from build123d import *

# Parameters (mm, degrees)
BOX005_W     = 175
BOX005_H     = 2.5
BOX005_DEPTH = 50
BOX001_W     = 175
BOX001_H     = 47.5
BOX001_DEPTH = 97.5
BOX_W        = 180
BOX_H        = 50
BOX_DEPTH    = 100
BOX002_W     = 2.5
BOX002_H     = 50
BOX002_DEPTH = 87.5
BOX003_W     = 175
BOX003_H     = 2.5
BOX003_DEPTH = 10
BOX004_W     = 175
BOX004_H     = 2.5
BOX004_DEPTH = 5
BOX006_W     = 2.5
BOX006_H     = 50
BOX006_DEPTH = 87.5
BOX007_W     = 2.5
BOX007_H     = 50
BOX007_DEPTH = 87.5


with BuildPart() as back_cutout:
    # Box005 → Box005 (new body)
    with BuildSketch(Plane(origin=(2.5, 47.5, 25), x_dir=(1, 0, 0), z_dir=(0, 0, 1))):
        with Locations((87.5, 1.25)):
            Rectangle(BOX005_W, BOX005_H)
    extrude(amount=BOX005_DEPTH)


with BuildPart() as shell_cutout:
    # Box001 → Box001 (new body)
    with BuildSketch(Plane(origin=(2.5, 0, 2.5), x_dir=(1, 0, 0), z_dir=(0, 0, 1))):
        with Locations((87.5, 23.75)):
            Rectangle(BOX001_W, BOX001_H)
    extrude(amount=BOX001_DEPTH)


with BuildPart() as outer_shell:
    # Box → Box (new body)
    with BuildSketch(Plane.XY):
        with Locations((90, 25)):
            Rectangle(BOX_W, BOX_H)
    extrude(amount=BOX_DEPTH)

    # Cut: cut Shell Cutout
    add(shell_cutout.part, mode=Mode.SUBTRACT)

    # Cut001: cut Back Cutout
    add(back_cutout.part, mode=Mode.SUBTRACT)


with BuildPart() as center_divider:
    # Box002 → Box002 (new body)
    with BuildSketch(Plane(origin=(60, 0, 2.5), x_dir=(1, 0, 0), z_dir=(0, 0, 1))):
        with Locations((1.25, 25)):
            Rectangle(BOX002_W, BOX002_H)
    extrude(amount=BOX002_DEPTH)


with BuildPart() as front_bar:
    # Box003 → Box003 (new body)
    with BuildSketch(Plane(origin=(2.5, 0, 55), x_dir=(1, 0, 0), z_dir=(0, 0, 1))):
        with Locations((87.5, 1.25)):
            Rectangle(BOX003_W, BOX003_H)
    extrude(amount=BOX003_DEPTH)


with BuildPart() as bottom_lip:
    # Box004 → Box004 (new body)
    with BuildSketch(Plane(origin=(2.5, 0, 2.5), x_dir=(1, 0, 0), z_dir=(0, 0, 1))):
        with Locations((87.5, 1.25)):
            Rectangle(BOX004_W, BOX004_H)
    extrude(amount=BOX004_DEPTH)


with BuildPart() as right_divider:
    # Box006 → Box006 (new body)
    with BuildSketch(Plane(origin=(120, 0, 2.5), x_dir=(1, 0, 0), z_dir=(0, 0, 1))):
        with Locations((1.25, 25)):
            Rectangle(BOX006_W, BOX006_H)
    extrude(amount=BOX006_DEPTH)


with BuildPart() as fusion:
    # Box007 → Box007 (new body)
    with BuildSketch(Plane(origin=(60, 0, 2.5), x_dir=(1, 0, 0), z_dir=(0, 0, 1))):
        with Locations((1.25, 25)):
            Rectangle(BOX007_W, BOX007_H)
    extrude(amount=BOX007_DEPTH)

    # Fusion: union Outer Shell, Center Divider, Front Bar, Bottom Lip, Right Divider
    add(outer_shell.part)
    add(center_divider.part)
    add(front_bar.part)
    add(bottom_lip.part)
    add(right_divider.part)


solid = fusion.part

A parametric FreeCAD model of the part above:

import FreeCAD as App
import Part
import Sketcher

V = App.Vector

doc = App.newDocument("Part")
params = doc.addObject("Spreadsheet::Sheet", "Params")
for row, (alias, value) in enumerate([
    ("sketch1_width", "175 mm"),
    ("sketch1_height", "2.5 mm"),
    ("pad1_length", "50 mm"),
    ("sketch2_width", "175 mm"),
    ("sketch2_height", "47.5 mm"),
    ("pad2_length", "97.5 mm"),
    ("sketch3_width", "180 mm"),
    ("sketch3_height", "50 mm"),
    ("pad3_length", "100 mm"),
    ("sketch4_height", "50 mm"),
    ("sketch4_width", "2.5 mm"),
    ("pad4_length", "87.5 mm"),
    ("sketch5_width", "175 mm"),
    ("sketch5_height", "2.5 mm"),
    ("pad5_length", "10 mm"),
    ("sketch6_width", "175 mm"),
    ("sketch6_height", "2.5 mm"),
    ("pad6_length", "5 mm"),
    ("sketch7_height", "50 mm"),
    ("sketch7_width", "2.5 mm"),
    ("pad7_length", "87.5 mm"),
    ("sketch8_height", "50 mm"),
    ("sketch8_width", "2.5 mm"),
    ("pad8_length", "87.5 mm"),
], start=1):
    params.set(f"A{row}", alias)
    params.set(f"B{row}", "=" + value)
    params.setAlias(f"B{row}", alias)

body = doc.addObject("PartDesign::Body", "Body")

sketch1 = body.newObject("Sketcher::SketchObject", "Sketch")
sketch1.AttachmentSupport = (doc.getObject("XY_Plane"), [""])
sketch1.MapMode = "FlatFace"
sketch1.AttachmentOffset = App.Placement(V(0, 0, 25), App.Rotation())
sketch1.addGeometry([
    Part.LineSegment(V(2.5, 50, 0), V(2.5, 47.5, 0)),
    Part.LineSegment(V(2.5, 47.5, 0), V(177.5, 47.5, 0)),
    Part.LineSegment(V(177.5, 47.5, 0), V(177.5, 50, 0)),
    Part.LineSegment(V(177.5, 50, 0), V(2.5, 50, 0)),
], False)
sketch1.addConstraint([
    Sketcher.Constraint("Coincident", 0, 2, 1, 1),
    Sketcher.Constraint("Coincident", 1, 2, 2, 1),
    Sketcher.Constraint("Coincident", 2, 2, 3, 1),
    Sketcher.Constraint("Coincident", 3, 2, 0, 1),
    Sketcher.Constraint("Vertical", 0),
    Sketcher.Constraint("Horizontal", 1),
    Sketcher.Constraint("Vertical", 2),
    Sketcher.Constraint("Horizontal", 3),
    Sketcher.Constraint("DistanceX", 1, 1, 1, 2, 175.0),
    Sketcher.Constraint("DistanceY", 0, 2, 0, 1, 2.5),
    Sketcher.Constraint("DistanceY", -1, 1, 2, 2, 50.0),
    Sketcher.Constraint("DistanceX", -1, 1, 0, 2, 2.5),
])
sketch1.setExpression("Constraints[8]", "Params.sketch1_width")
sketch1.setExpression("Constraints[9]", "Params.sketch1_height")
pad1 = body.newObject("PartDesign::Pad", "Pad")
pad1.Profile = sketch1
pad1.setExpression("Length", "Params.pad1_length")
body2 = doc.addObject("PartDesign::Body", "Body001")

sketch2 = body2.newObject("Sketcher::SketchObject", "Sketch001")
sketch2.AttachmentSupport = (doc.getObject("XY_Plane001"), [""])
sketch2.MapMode = "FlatFace"
sketch2.AttachmentOffset = App.Placement(V(0, 0, 2.5), App.Rotation())
sketch2.addGeometry([
    Part.LineSegment(V(2, 48, 0), V(2, 0, 0)),
    Part.LineSegment(V(2, 0, 0), V(178, 0, 0)),
    Part.LineSegment(V(178, 0, 0), V(178, 48, 0)),
    Part.LineSegment(V(178, 48, 0), V(2, 48, 0)),
], False)
sketch2.addConstraint([
    Sketcher.Constraint("Coincident", 0, 2, 1, 1),
    Sketcher.Constraint("Coincident", 1, 2, 2, 1),
    Sketcher.Constraint("Coincident", 2, 2, 3, 1),
    Sketcher.Constraint("Coincident", 3, 2, 0, 1),
    Sketcher.Constraint("Vertical", 0),
    Sketcher.Constraint("Horizontal", 1),
    Sketcher.Constraint("Vertical", 2),
    Sketcher.Constraint("Horizontal", 3),
    Sketcher.Constraint("PointOnObject", 0, 2, -1),
    Sketcher.Constraint("DistanceX", 1, 1, 1, 2, 175.0),
    Sketcher.Constraint("DistanceY", 0, 2, 0, 1, 47.5),
    Sketcher.Constraint("DistanceX", -1, 1, 0, 2, 2.5),
])
sketch2.setExpression("Constraints[9]", "Params.sketch2_width")
sketch2.setExpression("Constraints[10]", "Params.sketch2_height")
pad2 = body2.newObject("PartDesign::Pad", "Pad001")
pad2.Profile = sketch2
pad2.setExpression("Length", "Params.pad2_length")
body3 = doc.addObject("PartDesign::Body", "Body002")

sketch3 = body3.newObject("Sketcher::SketchObject", "Sketch002")
sketch3.AttachmentSupport = (doc.getObject("XY_Plane002"), [""])
sketch3.MapMode = "FlatFace"
sketch3.addGeometry([
    Part.LineSegment(V(0, 50, 0), V(0, 0, 0)),
    Part.LineSegment(V(0, 0, 0), V(180, 0, 0)),
    Part.LineSegment(V(180, 0, 0), V(180, 50, 0)),
    Part.LineSegment(V(180, 50, 0), V(0, 50, 0)),
], False)
sketch3.addConstraint([
    Sketcher.Constraint("Coincident", 0, 2, 1, 1),
    Sketcher.Constraint("Coincident", 1, 2, 2, 1),
    Sketcher.Constraint("Coincident", 2, 2, 3, 1),
    Sketcher.Constraint("Coincident", 3, 2, 0, 1),
    Sketcher.Constraint("Vertical", 0),
    Sketcher.Constraint("Horizontal", 1),
    Sketcher.Constraint("Vertical", 2),
    Sketcher.Constraint("Horizontal", 3),
    Sketcher.Constraint("Coincident", 0, 2, -1, 1),
    Sketcher.Constraint("DistanceX", 1, 1, 1, 2, 180.0),
    Sketcher.Constraint("DistanceY", 0, 2, 0, 1, 50.0),
])
sketch3.setExpression("Constraints[9]", "Params.sketch3_width")
sketch3.setExpression("Constraints[10]", "Params.sketch3_height")
pad3 = body3.newObject("PartDesign::Pad", "Pad002")
pad3.Profile = sketch3
pad3.setExpression("Length", "Params.pad3_length")
doc.recompute()

boolean = body3.newObject("PartDesign::Boolean", "Boolean")
boolean.Type = "Cut"
boolean.addObjects([body2])
doc.recompute()

boolean2 = body3.newObject("PartDesign::Boolean", "Boolean001")
boolean2.Type = "Cut"
boolean2.addObjects([body])
body4 = doc.addObject("PartDesign::Body", "Body003")

sketch4 = body4.newObject("Sketcher::SketchObject", "Sketch003")
sketch4.AttachmentSupport = (doc.getObject("XY_Plane003"), [""])
sketch4.MapMode = "FlatFace"
sketch4.AttachmentOffset = App.Placement(V(0, 0, 2.5), App.Rotation())
sketch4.addGeometry([
    Part.LineSegment(V(60, 50, 0), V(60, 0, 0)),
    Part.LineSegment(V(60, 0, 0), V(62.5, 0, 0)),
    Part.LineSegment(V(62.5, 0, 0), V(62.5, 50, 0)),
    Part.LineSegment(V(62.5, 50, 0), V(60, 50, 0)),
], False)
sketch4.addConstraint([
    Sketcher.Constraint("Coincident", 0, 2, 1, 1),
    Sketcher.Constraint("Coincident", 1, 2, 2, 1),
    Sketcher.Constraint("Coincident", 2, 2, 3, 1),
    Sketcher.Constraint("Coincident", 3, 2, 0, 1),
    Sketcher.Constraint("Vertical", 0),
    Sketcher.Constraint("Horizontal", 1),
    Sketcher.Constraint("Vertical", 2),
    Sketcher.Constraint("Horizontal", 3),
    Sketcher.Constraint("PointOnObject", 0, 2, -1),
    Sketcher.Constraint("DistanceY", 0, 2, 0, 1, 50.0),
    Sketcher.Constraint("DistanceX", 1, 1, 1, 2, 2.5),
    Sketcher.Constraint("DistanceX", -1, 1, 0, 2, 60.0),
])
sketch4.setExpression("Constraints[9]", "Params.sketch4_height")
sketch4.setExpression("Constraints[10]", "Params.sketch4_width")
pad4 = body4.newObject("PartDesign::Pad", "Pad003")
pad4.Profile = sketch4
pad4.setExpression("Length", "Params.pad4_length")
body5 = doc.addObject("PartDesign::Body", "Body004")

sketch5 = body5.newObject("Sketcher::SketchObject", "Sketch004")
sketch5.AttachmentSupport = (doc.getObject("XY_Plane004"), [""])
sketch5.MapMode = "FlatFace"
sketch5.AttachmentOffset = App.Placement(V(0, 0, 55), App.Rotation())
sketch5.addGeometry([
    Part.LineSegment(V(2.5, 2.5, 0), V(2.5, 0, 0)),
    Part.LineSegment(V(2.5, 0, 0), V(177.5, 0, 0)),
    Part.LineSegment(V(177.5, 0, 0), V(177.5, 2.5, 0)),
    Part.LineSegment(V(177.5, 2.5, 0), V(2.5, 2.5, 0)),
], False)
sketch5.addConstraint([
    Sketcher.Constraint("Coincident", 0, 2, 1, 1),
    Sketcher.Constraint("Coincident", 1, 2, 2, 1),
    Sketcher.Constraint("Coincident", 2, 2, 3, 1),
    Sketcher.Constraint("Coincident", 3, 2, 0, 1),
    Sketcher.Constraint("Vertical", 0),
    Sketcher.Constraint("Horizontal", 1),
    Sketcher.Constraint("Vertical", 2),
    Sketcher.Constraint("Horizontal", 3),
    Sketcher.Constraint("PointOnObject", 0, 2, -1),
    Sketcher.Constraint("DistanceX", 1, 1, 1, 2, 175.0),
    Sketcher.Constraint("DistanceY", 0, 2, 0, 1, 2.5),
    Sketcher.Constraint("DistanceX", -1, 1, 0, 2, 2.5),
])
sketch5.setExpression("Constraints[9]", "Params.sketch5_width")
sketch5.setExpression("Constraints[10]", "Params.sketch5_height")
pad5 = body5.newObject("PartDesign::Pad", "Pad004")
pad5.Profile = sketch5
pad5.setExpression("Length", "Params.pad5_length")
body6 = doc.addObject("PartDesign::Body", "Body005")

sketch6 = body6.newObject("Sketcher::SketchObject", "Sketch005")
sketch6.AttachmentSupport = (doc.getObject("XY_Plane005"), [""])
sketch6.MapMode = "FlatFace"
sketch6.AttachmentOffset = App.Placement(V(0, 0, 2.5), App.Rotation())
sketch6.addGeometry([
    Part.LineSegment(V(2.5, 2.5, 0), V(2.5, 0, 0)),
    Part.LineSegment(V(2.5, 0, 0), V(177.5, 0, 0)),
    Part.LineSegment(V(177.5, 0, 0), V(177.5, 2.5, 0)),
    Part.LineSegment(V(177.5, 2.5, 0), V(2.5, 2.5, 0)),
], False)
sketch6.addConstraint([
    Sketcher.Constraint("Coincident", 0, 2, 1, 1),
    Sketcher.Constraint("Coincident", 1, 2, 2, 1),
    Sketcher.Constraint("Coincident", 2, 2, 3, 1),
    Sketcher.Constraint("Coincident", 3, 2, 0, 1),
    Sketcher.Constraint("Vertical", 0),
    Sketcher.Constraint("Horizontal", 1),
    Sketcher.Constraint("Vertical", 2),
    Sketcher.Constraint("Horizontal", 3),
    Sketcher.Constraint("PointOnObject", 0, 2, -1),
    Sketcher.Constraint("DistanceX", 1, 1, 1, 2, 175.0),
    Sketcher.Constraint("DistanceY", 0, 2, 0, 1, 2.5),
    Sketcher.Constraint("DistanceX", -1, 1, 0, 2, 2.5),
])
sketch6.setExpression("Constraints[9]", "Params.sketch6_width")
sketch6.setExpression("Constraints[10]", "Params.sketch6_height")
pad6 = body6.newObject("PartDesign::Pad", "Pad005")
pad6.Profile = sketch6
pad6.setExpression("Length", "Params.pad6_length")
body7 = doc.addObject("PartDesign::Body", "Body006")

sketch7 = body7.newObject("Sketcher::SketchObject", "Sketch006")
sketch7.AttachmentSupport = (doc.getObject("XY_Plane006"), [""])
sketch7.MapMode = "FlatFace"
sketch7.AttachmentOffset = App.Placement(V(0, 0, 2.5), App.Rotation())
sketch7.addGeometry([
    Part.LineSegment(V(120, 50, 0), V(120, 0, 0)),
    Part.LineSegment(V(120, 0, 0), V(122.5, 0, 0)),
    Part.LineSegment(V(122.5, 0, 0), V(122.5, 50, 0)),
    Part.LineSegment(V(122.5, 50, 0), V(120, 50, 0)),
], False)
sketch7.addConstraint([
    Sketcher.Constraint("Coincident", 0, 2, 1, 1),
    Sketcher.Constraint("Coincident", 1, 2, 2, 1),
    Sketcher.Constraint("Coincident", 2, 2, 3, 1),
    Sketcher.Constraint("Coincident", 3, 2, 0, 1),
    Sketcher.Constraint("Vertical", 0),
    Sketcher.Constraint("Horizontal", 1),
    Sketcher.Constraint("Vertical", 2),
    Sketcher.Constraint("Horizontal", 3),
    Sketcher.Constraint("PointOnObject", 0, 2, -1),
    Sketcher.Constraint("DistanceY", 0, 2, 0, 1, 50.0),
    Sketcher.Constraint("DistanceX", 1, 1, 1, 2, 2.5),
    Sketcher.Constraint("DistanceX", -1, 1, 0, 2, 120.0),
])
sketch7.setExpression("Constraints[9]", "Params.sketch7_height")
sketch7.setExpression("Constraints[10]", "Params.sketch7_width")
pad7 = body7.newObject("PartDesign::Pad", "Pad006")
pad7.Profile = sketch7
pad7.setExpression("Length", "Params.pad7_length")
body8 = doc.addObject("PartDesign::Body", "Body007")

sketch8 = body8.newObject("Sketcher::SketchObject", "Sketch007")
sketch8.AttachmentSupport = (doc.getObject("XY_Plane007"), [""])
sketch8.MapMode = "FlatFace"
sketch8.AttachmentOffset = App.Placement(V(0, 0, 2.5), App.Rotation())
sketch8.addGeometry([
    Part.LineSegment(V(60, 50, 0), V(60, 0, 0)),
    Part.LineSegment(V(60, 0, 0), V(62.5, 0, 0)),
    Part.LineSegment(V(62.5, 0, 0), V(62.5, 50, 0)),
    Part.LineSegment(V(62.5, 50, 0), V(60, 50, 0)),
], False)
sketch8.addConstraint([
    Sketcher.Constraint("Coincident", 0, 2, 1, 1),
    Sketcher.Constraint("Coincident", 1, 2, 2, 1),
    Sketcher.Constraint("Coincident", 2, 2, 3, 1),
    Sketcher.Constraint("Coincident", 3, 2, 0, 1),
    Sketcher.Constraint("Vertical", 0),
    Sketcher.Constraint("Horizontal", 1),
    Sketcher.Constraint("Vertical", 2),
    Sketcher.Constraint("Horizontal", 3),
    Sketcher.Constraint("PointOnObject", 0, 2, -1),
    Sketcher.Constraint("DistanceY", 0, 2, 0, 1, 50.0),
    Sketcher.Constraint("DistanceX", 1, 1, 1, 2, 2.5),
    Sketcher.Constraint("DistanceX", -1, 1, 0, 2, 60.0),
])
sketch8.setExpression("Constraints[9]", "Params.sketch8_height")
sketch8.setExpression("Constraints[10]", "Params.sketch8_width")
pad8 = body8.newObject("PartDesign::Pad", "Pad007")
pad8.Profile = sketch8
pad8.setExpression("Length", "Params.pad8_length")
doc.recompute()

boolean3 = body8.newObject("PartDesign::Boolean", "Boolean002")
boolean3.Type = "Fuse"
boolean3.addObjects([body3])
doc.recompute()

boolean4 = body8.newObject("PartDesign::Boolean", "Boolean003")
boolean4.Type = "Fuse"
boolean4.addObjects([body4])
doc.recompute()

boolean5 = body8.newObject("PartDesign::Boolean", "Boolean004")
boolean5.Type = "Fuse"
boolean5.addObjects([body5])
doc.recompute()

boolean6 = body8.newObject("PartDesign::Boolean", "Boolean005")
boolean6.Type = "Fuse"
boolean6.addObjects([body6])
doc.recompute()

boolean7 = body8.newObject("PartDesign::Boolean", "Boolean006")
boolean7.Type = "Fuse"
boolean7.addObjects([body7])

doc.recompute()
